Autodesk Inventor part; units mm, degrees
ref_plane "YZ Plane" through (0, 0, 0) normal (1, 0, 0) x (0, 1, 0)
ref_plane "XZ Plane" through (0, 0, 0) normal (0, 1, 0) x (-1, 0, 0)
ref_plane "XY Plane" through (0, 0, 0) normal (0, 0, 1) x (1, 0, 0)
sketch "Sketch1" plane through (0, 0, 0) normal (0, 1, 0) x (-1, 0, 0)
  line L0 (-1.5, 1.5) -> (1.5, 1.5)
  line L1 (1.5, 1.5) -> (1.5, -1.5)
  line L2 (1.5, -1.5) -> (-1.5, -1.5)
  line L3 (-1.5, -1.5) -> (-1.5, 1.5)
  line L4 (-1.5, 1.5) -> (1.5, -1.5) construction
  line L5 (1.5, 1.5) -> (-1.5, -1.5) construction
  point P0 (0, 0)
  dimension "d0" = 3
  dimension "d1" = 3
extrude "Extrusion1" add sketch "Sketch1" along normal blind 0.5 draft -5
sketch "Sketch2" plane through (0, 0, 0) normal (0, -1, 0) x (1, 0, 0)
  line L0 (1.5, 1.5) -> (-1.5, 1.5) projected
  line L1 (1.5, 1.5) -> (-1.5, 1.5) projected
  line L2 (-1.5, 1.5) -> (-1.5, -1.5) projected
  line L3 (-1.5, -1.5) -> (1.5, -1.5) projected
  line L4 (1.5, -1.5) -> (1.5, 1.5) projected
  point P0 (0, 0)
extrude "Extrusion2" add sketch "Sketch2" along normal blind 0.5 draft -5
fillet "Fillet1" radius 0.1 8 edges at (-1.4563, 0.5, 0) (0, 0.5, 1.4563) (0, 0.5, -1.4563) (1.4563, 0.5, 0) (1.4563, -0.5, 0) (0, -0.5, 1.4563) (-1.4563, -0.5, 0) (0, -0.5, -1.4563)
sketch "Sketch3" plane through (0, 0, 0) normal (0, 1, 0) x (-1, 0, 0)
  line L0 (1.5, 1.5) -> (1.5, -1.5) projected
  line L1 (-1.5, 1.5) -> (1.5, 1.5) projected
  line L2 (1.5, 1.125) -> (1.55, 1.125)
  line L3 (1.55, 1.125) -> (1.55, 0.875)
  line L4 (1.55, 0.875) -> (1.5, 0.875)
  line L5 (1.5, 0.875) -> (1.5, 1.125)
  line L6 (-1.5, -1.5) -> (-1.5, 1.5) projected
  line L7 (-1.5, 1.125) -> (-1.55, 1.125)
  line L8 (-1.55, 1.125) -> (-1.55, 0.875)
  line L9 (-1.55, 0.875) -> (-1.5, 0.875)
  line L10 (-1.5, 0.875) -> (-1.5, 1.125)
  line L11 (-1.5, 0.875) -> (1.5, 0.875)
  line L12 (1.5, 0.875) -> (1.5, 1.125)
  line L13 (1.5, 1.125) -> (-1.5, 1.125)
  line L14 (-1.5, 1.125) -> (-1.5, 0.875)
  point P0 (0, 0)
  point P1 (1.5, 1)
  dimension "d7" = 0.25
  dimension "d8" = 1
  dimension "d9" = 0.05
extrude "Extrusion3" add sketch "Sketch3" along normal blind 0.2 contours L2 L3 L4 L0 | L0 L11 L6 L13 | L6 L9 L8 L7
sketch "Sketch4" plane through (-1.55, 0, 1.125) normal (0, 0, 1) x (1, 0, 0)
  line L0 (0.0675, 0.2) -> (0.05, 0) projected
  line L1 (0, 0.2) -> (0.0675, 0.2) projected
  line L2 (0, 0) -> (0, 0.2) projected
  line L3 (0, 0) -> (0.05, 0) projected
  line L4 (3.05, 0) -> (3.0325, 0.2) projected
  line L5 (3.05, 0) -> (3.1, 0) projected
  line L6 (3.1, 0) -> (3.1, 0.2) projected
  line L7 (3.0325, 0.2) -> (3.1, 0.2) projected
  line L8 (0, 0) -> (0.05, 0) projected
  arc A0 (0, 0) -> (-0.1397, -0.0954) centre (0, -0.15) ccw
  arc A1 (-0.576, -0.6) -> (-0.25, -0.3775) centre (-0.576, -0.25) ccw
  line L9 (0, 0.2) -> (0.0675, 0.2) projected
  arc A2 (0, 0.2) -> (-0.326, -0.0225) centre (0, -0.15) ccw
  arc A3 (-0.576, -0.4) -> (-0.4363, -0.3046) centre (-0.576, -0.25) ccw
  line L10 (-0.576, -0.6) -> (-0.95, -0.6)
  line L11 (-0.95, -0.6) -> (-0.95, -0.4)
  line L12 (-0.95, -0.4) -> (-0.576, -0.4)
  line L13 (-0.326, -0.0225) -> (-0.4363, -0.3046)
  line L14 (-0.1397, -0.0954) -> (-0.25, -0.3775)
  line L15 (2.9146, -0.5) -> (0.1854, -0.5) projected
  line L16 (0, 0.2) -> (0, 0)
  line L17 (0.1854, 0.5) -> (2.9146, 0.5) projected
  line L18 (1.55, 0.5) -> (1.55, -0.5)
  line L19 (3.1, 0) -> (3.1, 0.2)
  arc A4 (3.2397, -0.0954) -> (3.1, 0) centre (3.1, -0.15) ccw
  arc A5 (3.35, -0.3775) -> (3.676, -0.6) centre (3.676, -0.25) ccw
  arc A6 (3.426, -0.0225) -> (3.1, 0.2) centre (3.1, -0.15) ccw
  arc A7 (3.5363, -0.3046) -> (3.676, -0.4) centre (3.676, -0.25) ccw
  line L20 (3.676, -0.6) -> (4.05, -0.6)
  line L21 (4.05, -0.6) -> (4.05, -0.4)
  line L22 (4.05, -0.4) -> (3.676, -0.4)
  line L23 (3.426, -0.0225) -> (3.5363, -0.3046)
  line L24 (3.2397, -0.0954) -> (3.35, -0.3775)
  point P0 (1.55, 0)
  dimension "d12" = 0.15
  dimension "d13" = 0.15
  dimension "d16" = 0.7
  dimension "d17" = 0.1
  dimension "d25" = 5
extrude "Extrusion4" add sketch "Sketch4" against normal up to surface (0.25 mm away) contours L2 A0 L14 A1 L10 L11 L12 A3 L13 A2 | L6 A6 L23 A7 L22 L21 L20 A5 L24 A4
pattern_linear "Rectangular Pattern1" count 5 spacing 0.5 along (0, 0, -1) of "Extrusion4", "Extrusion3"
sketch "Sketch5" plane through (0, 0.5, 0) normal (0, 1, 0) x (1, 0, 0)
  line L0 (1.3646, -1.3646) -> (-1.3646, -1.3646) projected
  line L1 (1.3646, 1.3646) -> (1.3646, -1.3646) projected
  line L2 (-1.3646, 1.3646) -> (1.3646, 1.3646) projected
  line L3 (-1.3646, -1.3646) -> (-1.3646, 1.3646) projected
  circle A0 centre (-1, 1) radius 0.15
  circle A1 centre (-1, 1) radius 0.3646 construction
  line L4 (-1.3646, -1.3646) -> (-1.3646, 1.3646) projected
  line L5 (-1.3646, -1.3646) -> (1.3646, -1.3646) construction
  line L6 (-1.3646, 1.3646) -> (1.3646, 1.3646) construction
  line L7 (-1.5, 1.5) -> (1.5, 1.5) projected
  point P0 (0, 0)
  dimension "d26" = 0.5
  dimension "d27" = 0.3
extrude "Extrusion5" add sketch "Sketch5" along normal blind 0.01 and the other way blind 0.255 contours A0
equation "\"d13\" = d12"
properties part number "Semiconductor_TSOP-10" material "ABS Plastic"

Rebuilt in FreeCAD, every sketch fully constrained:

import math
import FreeCAD as App
import Part
import Sketcher

V = App.Vector


def edges_at(feature, points):
    """Names of the edges that pass closest to the given points."""
    edges = feature.Shape.Edges
    near = lambda p: min(range(len(edges)), key=lambda i: edges[i].distToShape(Part.Vertex(*p))[0])
    return sorted({f"Edge{near(p) + 1}" for p in points})


def add_polygon(sketch, points):
    """Adds a closed chain of lines whose ends are joined by coincident constraints."""
    first, n = sketch.GeometryCount, len(points)
    for a, b in zip(points, points[1:] + points[:1]):
        sketch.addGeometry(Part.LineSegment(App.Vector(*a, 0), App.Vector(*b, 0)), False)
    for i in range(n):
        sketch.addConstraint(Sketcher.Constraint("Coincident", first + i, 2, first + (i + 1) % n, 1))

doc = App.newDocument("Part")
params = doc.addObject("Spreadsheet::Sheet", "Params")
for row, (alias, value) in enumerate([
    ("sketch1_width", "3 mm"),
    ("pad1_length", "0.5 mm"),
    ("pad1_taper", "-5 deg"),
    ("sketch2_width", "3 mm"),
    ("pad2_length", "0.5 mm"),
    ("pad2_taper", "-5 deg"),
    ("fillet_radius", "0.1 mm"),
    ("sketch3_height", "0.25 mm"),
    ("sketch3_width", "3.1 mm"),
    ("pad3_length", "0.2 mm"),
    ("sketch4_radius", "0.35 mm"),
    ("sketch4_radius2", "0.15 mm"),
    ("pad4_length", "0.25 mm"),
    ("linearpattern_pitch", "0.5 mm"),
    ("sketch5_diameter", "0.3 mm"),
    ("pad5_length", "0.01 mm"),
    ("pad5_length2", "0.255 mm"),
], start=1):
    params.set(f"A{row}", alias)
    params.set(f"B{row}", "=" + value)
    params.setAlias(f"B{row}", alias)

body = doc.addObject("PartDesign::Body", "Body")

# Sketch on XZ plane
sketch1 = body.newObject("Sketcher::SketchObject", "Sketch")
sketch1.AttachmentSupport = (doc.getObject("XZ_Plane"), [""])
sketch1.MapMode = "FlatFace"
add_polygon(sketch1, [(-1.5, 1.5), (1.5, 1.5), (1.5, -1.5), (-1.5, -1.5)])  # lines 0-3
sketch1.addConstraint(Sketcher.Constraint("Horizontal", 0))
sketch1.addConstraint(Sketcher.Constraint("Vertical", 1))
sketch1.addConstraint(Sketcher.Constraint("Horizontal", 2))
sketch1.addConstraint(Sketcher.Constraint("Vertical", 3))
sketch1.addConstraint(Sketcher.Constraint("Symmetric", 0, 2, 2, 2, -1, 1))
sketch1.addConstraint(Sketcher.Constraint("Equal", 2, 1))
sketch1.addConstraint(Sketcher.Constraint("DistanceX", 0, 1, 0, 2, 3.0))
sketch1.setExpression("Constraints[10]", "Params.sketch1_width")
pad1 = body.newObject("PartDesign::Pad", "Pad")
pad1.Profile = sketch1
pad1.setExpression("Length", "Params.pad1_length")
pad1.Reversed = True
pad1.setExpression("TaperAngle", "Params.pad1_taper")

# Sketch on XZ plane
sketch2 = body.newObject("Sketcher::SketchObject", "Sketch001")
sketch2.AttachmentSupport = (doc.getObject("XZ_Plane"), [""])
sketch2.MapMode = "FlatFace"
add_polygon(sketch2, [(1.5, -1.5), (1.5, 1.5), (-1.5, 1.5), (-1.5, -1.5)])  # lines 0-3
sketch2.addConstraint(Sketcher.Constraint("Vertical", 0))
sketch2.addConstraint(Sketcher.Constraint("Horizontal", 1))
sketch2.addConstraint(Sketcher.Constraint("Vertical", 2))
sketch2.addConstraint(Sketcher.Constraint("Horizontal", 3))
sketch2.addConstraint(Sketcher.Constraint("Symmetric", 0, 2, 2, 2, -1, 1))
sketch2.addConstraint(Sketcher.Constraint("Equal", 3, 0))
sketch2.addConstraint(Sketcher.Constraint("DistanceX", 1, 2, 1, 1, 3.0))
sketch2.setExpression("Constraints[10]", "Params.sketch2_width")
pad2 = body.newObject("PartDesign::Pad", "Pad001")
pad2.Profile = sketch2
pad2.setExpression("Length", "Params.pad2_length")
pad2.setExpression("TaperAngle", "Params.pad2_taper")
doc.recompute()

fillet = body.newObject("PartDesign::Fillet", "Fillet")
fillet.Base = (pad2, edges_at(pad2, [
    (-1.456, 0.5, 0),
    (0, 0.5, 1.456),
    (0, 0.5, -1.456),
    (1.456, 0.5, 0),
    (1.456, -0.5, 0),
    (0, -0.5, 1.456),
    (-1.456, -0.5, 0),
    (0, -0.5, -1.456),
]))
fillet.setExpression("Radius", "Params.fillet_radius")

# Sketch on XZ plane
sketch3 = body.newObject("Sketcher::SketchObject", "Sketch002")
sketch3.AttachmentSupport = (doc.getObject("XZ_Plane"), [""])
sketch3.MapMode = "FlatFace"
add_polygon(sketch3, [(-1.55, 1.12), (1.55, 1.12), (1.55, 0.88), (-1.55, 0.88)])  # lines 0-3
sketch3.addConstraint(Sketcher.Constraint("Horizontal", 0))
sketch3.addConstraint(Sketcher.Constraint("Vertical", 1))
sketch3.addConstraint(Sketcher.Constraint("Horizontal", 2))
sketch3.addConstraint(Sketcher.Constraint("Vertical", 3))
sketch3.addConstraint(Sketcher.Constraint("DistanceY", 1, 2, 1, 1, 0.25))
sketch3.addConstraint(Sketcher.Constraint("DistanceX", 0, 1, 0, 2, 3.1))
sketch3.addConstraint(Sketcher.Constraint("DistanceX", -1, 1, 0, 2, 1.55))
sketch3.addConstraint(Sketcher.Constraint("DistanceY", -1, 1, 0, 2, 1.125))
sketch3.setExpression("Constraints[8]", "Params.sketch3_height")
sketch3.setExpression("Constraints[9]", "Params.sketch3_width")
pad3 = body.newObject("PartDesign::Pad", "Pad002")
pad3.Profile = sketch3
pad3.setExpression("Length", "Params.pad3_length")
pad3.Reversed = True

# Sketch on XY plane
sketch4 = body.newObject("Sketcher::SketchObject", "Sketch003")
sketch4.AttachmentSupport = (doc.getObject("XY_Plane"), [""])
sketch4.MapMode = "FlatFace"
sketch4.AttachmentOffset = App.Placement(V(0, 0, 1.125), App.Rotation())
sketch4.addGeometry(Part.LineSegment(V(-1.55, 0, 0), V(-1.55, 0.2, 0)), False)
sketch4.addGeometry(Part.ArcOfCircle(Part.Circle(V(-1.55, -0.15, 0), V(0, 0, 1), 0.35), math.radians(90), math.radians(159)), False)
sketch4.addGeometry(Part.LineSegment(V(-1.88, -0.02, 0), V(-1.99, -0.3, 0)), False)
sketch4.addGeometry(Part.ArcOfCircle(Part.Circle(V(-2.13, -0.25, 0), V(0, 0, 1), 0.15), math.radians(-90), math.radians(-21)), False)
sketch4.addGeometry(Part.LineSegment(V(-2.13, -0.4, 0), V(-2.5, -0.4, 0)), False)
sketch4.addGeometry(Part.LineSegment(V(-2.5, -0.4, 0), V(-2.5, -0.6, 0)), False)
sketch4.addGeometry(Part.LineSegment(V(-2.5, -0.6, 0), V(-2.13, -0.6, 0)), False)
sketch4.addGeometry(Part.ArcOfCircle(Part.Circle(V(-2.13, -0.25, 0), V(0, 0, 1), 0.35), math.radians(-90), math.radians(-21)), False)
sketch4.addGeometry(Part.LineSegment(V(-1.8, -0.38, 0), V(-1.69, -0.1, 0)), False)
sketch4.addGeometry(Part.ArcOfCircle(Part.Circle(V(-1.55, -0.15, 0), V(0, 0, 1), 0.15), math.radians(90), math.radians(159)), False)
sketch4.addGeometry(Part.LineSegment(V(1.55, 0.2, 0), V(1.55, 0, 0)), False)
sketch4.addGeometry(Part.ArcOfCircle(Part.Circle(V(1.55, -0.15, 0), V(0, 0, 1), 0.15), math.radians(21), math.radians(90)), False)
sketch4.addGeometry(Part.LineSegment(V(1.69, -0.1, 0), V(1.8, -0.38, 0)), False)
sketch4.addGeometry(Part.ArcOfCircle(Part.Circle(V(2.13, -0.25, 0), V(0, 0, 1), 0.35), math.radians(-159), math.radians(-90)), False)
sketch4.addGeometry(Part.LineSegment(V(2.13, -0.6, 0), V(2.5, -0.6, 0)), False)
sketch4.addGeometry(Part.LineSegment(V(2.5, -0.6, 0), V(2.5, -0.4, 0)), False)
sketch4.addGeometry(Part.LineSegment(V(2.5, -0.4, 0), V(2.13, -0.4, 0)), False)
sketch4.addGeometry(Part.ArcOfCircle(Part.Circle(V(2.13, -0.25, 0), V(0, 0, 1), 0.15), math.radians(-159), math.radians(-90)), False)
sketch4.addGeometry(Part.LineSegment(V(1.99, -0.3, 0), V(1.88, -0.02, 0)), False)
sketch4.addGeometry(Part.ArcOfCircle(Part.Circle(V(1.55, -0.15, 0), V(0, 0, 1), 0.35), math.radians(21), math.radians(90)), False)
sketch4.addConstraint(Sketcher.Constraint("Coincident", 0, 2, 1, 1))
sketch4.addConstraint(Sketcher.Constraint("Tangent", 1, 2, 2, 1))
sketch4.addConstraint(Sketcher.Constraint("Tangent", 2, 2, 3, 2))
sketch4.addConstraint(Sketcher.Constraint("Tangent", 3, 1, 4, 1))
sketch4.addConstraint(Sketcher.Constraint("Coincident", 4, 2, 5, 1))
sketch4.addConstraint(Sketcher.Constraint("Coincident", 5, 2, 6, 1))
sketch4.addConstraint(Sketcher.Constraint("Tangent", 6, 2, 7, 1))
sketch4.addConstraint(Sketcher.Constraint("Tangent", 7, 2, 8, 1))
sketch4.addConstraint(Sketcher.Constraint("Tangent", 8, 2, 9, 2))
sketch4.addConstraint(Sketcher.Constraint("Coincident", 9, 1, 0, 1))
sketch4.addConstraint(Sketcher.Constraint("Coincident", 10, 2, 11, 2))
sketch4.addConstraint(Sketcher.Constraint("Tangent", 11, 1, 12, 1))
sketch4.addConstraint(Sketcher.Constraint("Tangent", 12, 2, 13, 1))
sketch4.addConstraint(Sketcher.Constraint("Tangent", 13, 2, 14, 1))
sketch4.addConstraint(Sketcher.Constraint("Coincident", 14, 2, 15, 1))
sketch4.addConstraint(Sketcher.Constraint("Coincident", 15, 2, 16, 1))
sketch4.addConstraint(Sketcher.Constraint("Tangent", 16, 2, 17, 2))
sketch4.addConstraint(Sketcher.Constraint("Tangent", 17, 1, 18, 1))
sketch4.addConstraint(Sketcher.Constraint("Tangent", 18, 2, 19, 1))
sketch4.addConstraint(Sketcher.Constraint("Coincident", 19, 2, 10, 1))
sketch4.addConstraint(Sketcher.Constraint("Vertical", 0))
sketch4.addConstraint(Sketcher.Constraint("Horizontal", 4))
sketch4.addConstraint(Sketcher.Constraint("Vertical", 5))
sketch4.addConstraint(Sketcher.Constraint("Horizontal", 6))
sketch4.addConstraint(Sketcher.Constraint("Vertical", 10))
sketch4.addConstraint(Sketcher.Constraint("Horizontal", 14))
sketch4.addConstraint(Sketcher.Constraint("Vertical", 15))
sketch4.addConstraint(Sketcher.Constraint("Horizontal", 16))
sketch4.addConstraint(Sketcher.Constraint("Coincident", 7, 3, 3, 3))
sketch4.addConstraint(Sketcher.Constraint("Coincident", 9, 3, 1, 3))
sketch4.addConstraint(Sketcher.Constraint("Coincident", 17, 3, 13, 3))
sketch4.addConstraint(Sketcher.Constraint("Coincident", 19, 3, 11, 3))
sketch4.addConstraint(Sketcher.Constraint("Equal", 1, 7))
sketch4.addConstraint(Sketcher.Constraint("Equal", 3, 9))
sketch4.addConstraint(Sketcher.Constraint("Equal", 9, 11))
sketch4.addConstraint(Sketcher.Constraint("Equal", 7, 13))
sketch4.addConstraint(Sketcher.Constraint("Equal", 11, 17))
sketch4.addConstraint(Sketcher.Constraint("Equal", 13, 19))
sketch4.addConstraint(Sketcher.Constraint("Symmetric", 9, 1, 10, 2, -1, 1))
sketch4.addConstraint(Sketcher.Constraint("Symmetric", 1, 3, 11, 3, -2))
sketch4.addConstraint(Sketcher.Constraint("Symmetric", 3, 3, 13, 3, -2))
sketch4.addConstraint(Sketcher.Constraint("Vertical", 9, 3, 0, 2))
sketch4.addConstraint(Sketcher.Constraint("Equal", 6, 14))
sketch4.addConstraint(Sketcher.Constraint("Radius", 1, 0.35))
sketch4.addConstraint(Sketcher.Constraint("Radius", 3, 0.15))
sketch4.addConstraint(Sketcher.Constraint("DistanceY", 3, 3, 1, 3, 0.1))
sketch4.addConstraint(Sketcher.Constraint("DistanceX", 12, 2, 14, 2, 0.7))
sketch4.addConstraint(Sketcher.Constraint("DistanceX", 4, 2, -1, 1, 2.5))
sketch4.addConstraint(Sketcher.Constraint("DistanceX", 1, 3, 11, 3, 3.1))
sketch4.setExpression("Constraints[43]", "Params.sketch4_radius")
sketch4.setExpression("Constraints[44]", "Params.sketch4_radius2")
pad4 = body.newObject("PartDesign::Pad", "Pad003")
pad4.Profile = sketch4
pad4.setExpression("Length", "Params.pad4_length")
pad4.Reversed = True
doc.recompute()

linearpattern = body.newObject("PartDesign::LinearPattern", "LinearPattern")
linearpattern.Originals = [pad4, pad3]
linearpattern.Direction = (doc.getObject("Z_Axis"), [""])
linearpattern.Mode = "offset"
linearpattern.setExpression("Offset", "Params.linearpattern_pitch")
linearpattern.Occurrences = 5
linearpattern.Reversed = True
body.Tip = linearpattern

# Sketch on XZ plane
sketch5 = body.newObject("Sketcher::SketchObject", "Sketch004")
sketch5.AttachmentSupport = (doc.getObject("XZ_Plane"), [""])
sketch5.MapMode = "FlatFace"
sketch5.AttachmentOffset = App.Placement(V(0, 0, -0.5), App.Rotation())
sketch5.addGeometry(Part.Circle(V(-1, -1, 0), V(0, 0, 1), 0.15), False)
sketch5.addConstraint(Sketcher.Constraint("Diameter", 0, 0.3))
sketch5.addConstraint(Sketcher.Constraint("DistanceX", 0, 3, -1, 1, 1.0))
sketch5.addConstraint(Sketcher.Constraint("DistanceY", 0, 3, -1, 1, 1.0))
sketch5.setExpression("Constraints[0]", "Params.sketch5_diameter")
pad5 = body.newObject("PartDesign::Pad", "Pad004")
pad5.Profile = sketch5
pad5.Type = "TwoLengths"
pad5.setExpression("Length", "Params.pad5_length")
pad5.setExpression("Length2", "Params.pad5_length2")
pad5.Reversed = True

doc.recompute()
